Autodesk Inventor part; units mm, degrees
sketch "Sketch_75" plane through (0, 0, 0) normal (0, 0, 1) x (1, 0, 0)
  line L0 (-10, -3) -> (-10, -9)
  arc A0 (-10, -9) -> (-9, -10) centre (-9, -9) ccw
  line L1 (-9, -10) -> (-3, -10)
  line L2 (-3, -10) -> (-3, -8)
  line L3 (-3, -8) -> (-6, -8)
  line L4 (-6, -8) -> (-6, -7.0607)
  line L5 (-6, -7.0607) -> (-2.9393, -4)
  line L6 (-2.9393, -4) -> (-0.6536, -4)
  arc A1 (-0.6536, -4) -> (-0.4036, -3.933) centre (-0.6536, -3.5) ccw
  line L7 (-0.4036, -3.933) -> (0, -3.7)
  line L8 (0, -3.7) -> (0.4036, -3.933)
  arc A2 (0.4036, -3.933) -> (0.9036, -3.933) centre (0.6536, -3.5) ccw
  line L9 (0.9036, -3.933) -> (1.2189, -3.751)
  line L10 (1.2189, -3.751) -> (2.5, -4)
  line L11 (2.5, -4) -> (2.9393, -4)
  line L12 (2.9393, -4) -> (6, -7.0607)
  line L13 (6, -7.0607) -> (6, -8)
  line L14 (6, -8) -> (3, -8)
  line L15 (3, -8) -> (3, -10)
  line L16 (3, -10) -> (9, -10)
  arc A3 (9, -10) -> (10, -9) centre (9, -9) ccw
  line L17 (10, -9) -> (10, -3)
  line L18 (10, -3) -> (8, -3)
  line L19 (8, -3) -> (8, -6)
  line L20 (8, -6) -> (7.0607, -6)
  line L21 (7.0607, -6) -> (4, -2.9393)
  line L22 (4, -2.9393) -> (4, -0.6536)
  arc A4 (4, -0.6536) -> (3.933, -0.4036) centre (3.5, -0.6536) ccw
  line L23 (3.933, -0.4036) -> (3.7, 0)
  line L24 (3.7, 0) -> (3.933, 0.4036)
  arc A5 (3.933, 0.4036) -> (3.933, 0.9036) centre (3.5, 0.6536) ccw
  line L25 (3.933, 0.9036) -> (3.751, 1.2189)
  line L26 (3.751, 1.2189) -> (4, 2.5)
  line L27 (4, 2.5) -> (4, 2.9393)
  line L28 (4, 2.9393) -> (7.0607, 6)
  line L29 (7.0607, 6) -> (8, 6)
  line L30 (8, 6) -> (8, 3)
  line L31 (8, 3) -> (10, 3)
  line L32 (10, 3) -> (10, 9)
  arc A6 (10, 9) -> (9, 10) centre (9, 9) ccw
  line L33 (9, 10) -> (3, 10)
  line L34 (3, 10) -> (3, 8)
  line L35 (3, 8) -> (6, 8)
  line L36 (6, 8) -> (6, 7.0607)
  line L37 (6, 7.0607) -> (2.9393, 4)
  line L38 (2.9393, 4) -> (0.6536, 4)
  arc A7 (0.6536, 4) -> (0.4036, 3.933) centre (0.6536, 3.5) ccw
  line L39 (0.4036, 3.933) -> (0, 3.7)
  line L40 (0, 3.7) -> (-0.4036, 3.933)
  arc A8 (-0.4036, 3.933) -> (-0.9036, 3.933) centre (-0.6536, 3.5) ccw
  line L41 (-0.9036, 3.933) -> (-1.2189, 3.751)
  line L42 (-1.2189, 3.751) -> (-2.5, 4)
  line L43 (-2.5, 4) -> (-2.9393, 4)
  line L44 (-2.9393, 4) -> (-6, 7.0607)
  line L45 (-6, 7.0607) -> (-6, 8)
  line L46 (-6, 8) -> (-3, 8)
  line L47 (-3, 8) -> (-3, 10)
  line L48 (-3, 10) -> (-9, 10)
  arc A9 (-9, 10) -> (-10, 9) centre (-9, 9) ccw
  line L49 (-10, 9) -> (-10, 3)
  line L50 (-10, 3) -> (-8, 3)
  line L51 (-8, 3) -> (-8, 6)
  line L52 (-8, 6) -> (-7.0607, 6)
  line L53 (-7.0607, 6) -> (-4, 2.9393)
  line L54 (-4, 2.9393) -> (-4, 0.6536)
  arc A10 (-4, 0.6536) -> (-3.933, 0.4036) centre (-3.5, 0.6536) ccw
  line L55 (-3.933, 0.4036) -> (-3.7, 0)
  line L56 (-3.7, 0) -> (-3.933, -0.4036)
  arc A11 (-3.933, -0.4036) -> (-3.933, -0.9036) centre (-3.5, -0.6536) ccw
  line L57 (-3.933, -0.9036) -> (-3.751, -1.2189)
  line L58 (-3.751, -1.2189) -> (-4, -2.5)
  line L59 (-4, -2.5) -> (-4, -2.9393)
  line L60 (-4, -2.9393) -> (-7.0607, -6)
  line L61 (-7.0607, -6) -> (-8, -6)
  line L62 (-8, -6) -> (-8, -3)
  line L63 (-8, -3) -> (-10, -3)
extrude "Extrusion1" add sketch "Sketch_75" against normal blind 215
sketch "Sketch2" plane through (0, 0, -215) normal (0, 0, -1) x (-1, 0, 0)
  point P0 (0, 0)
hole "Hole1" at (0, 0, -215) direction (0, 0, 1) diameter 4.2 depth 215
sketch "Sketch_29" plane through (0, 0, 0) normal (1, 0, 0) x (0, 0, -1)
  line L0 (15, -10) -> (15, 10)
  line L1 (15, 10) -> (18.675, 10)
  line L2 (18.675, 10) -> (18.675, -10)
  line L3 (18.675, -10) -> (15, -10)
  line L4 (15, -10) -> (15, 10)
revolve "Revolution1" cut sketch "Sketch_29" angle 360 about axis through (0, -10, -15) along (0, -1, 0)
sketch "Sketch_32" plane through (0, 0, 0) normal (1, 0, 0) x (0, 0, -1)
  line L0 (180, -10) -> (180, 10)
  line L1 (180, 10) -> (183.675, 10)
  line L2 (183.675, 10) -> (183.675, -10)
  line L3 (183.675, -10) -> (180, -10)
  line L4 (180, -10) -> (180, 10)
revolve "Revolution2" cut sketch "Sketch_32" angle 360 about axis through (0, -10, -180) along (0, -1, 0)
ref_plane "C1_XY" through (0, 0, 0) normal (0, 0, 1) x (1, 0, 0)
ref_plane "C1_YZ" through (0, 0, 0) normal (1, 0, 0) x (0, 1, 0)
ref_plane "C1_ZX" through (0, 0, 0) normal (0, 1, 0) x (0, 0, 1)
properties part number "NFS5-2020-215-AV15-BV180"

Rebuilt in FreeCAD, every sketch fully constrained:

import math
import FreeCAD as App
import Part
import Sketcher

V = App.Vector
Q = App.Units.Quantity

doc = App.newDocument("Part")
body = doc.addObject("PartDesign::Body", "Body")

# Sketch on XY plane
sketch1 = body.newObject("Sketcher::SketchObject", "Sketch")
sketch1.AttachmentSupport = (doc.getObject("XY_Plane"), [""])
sketch1.MapMode = "FlatFace"
sketch1.addGeometry([
    Part.LineSegment(V(-8, -3, 0), V(-10, -3, 0)),  # 0
    Part.LineSegment(V(-10, -3, 0), V(-10, -9, 0)),  # 1
    Part.ArcOfCircle(Part.Circle(V(-9, -9, 0), V(0, 0, 1), 1), math.radians(180), math.radians(270)),  # 2
    Part.LineSegment(V(-9, -10, 0), V(-3, -10, 0)),  # 3
    Part.LineSegment(V(-3, -10, 0), V(-3, -8, 0)),  # 4
    Part.LineSegment(V(-3, -8, 0), V(-6, -8, 0)),  # 5
    Part.LineSegment(V(-6, -8, 0), V(-6, -7.06, 0)),  # 6
    Part.LineSegment(V(-6, -7.06, 0), V(-2.94, -4, 0)),  # 7
    Part.LineSegment(V(-2.94, -4, 0), V(-0.65, -4, 0)),  # 8
    Part.ArcOfCircle(Part.Circle(V(-0.65, -3.5, 0), V(0, 0, 1), 0.5), math.radians(-90), math.radians(-60)),  # 9
    Part.LineSegment(V(-0.4, -3.93, 0), V(0, -3.7, 0)),  # 10
    Part.LineSegment(V(0, -3.7, 0), V(0.4, -3.93, 0)),  # 11
    Part.ArcOfCircle(Part.Circle(V(0.65, -3.5, 0), V(0, 0, 1), 0.5), math.radians(-120), math.radians(-60)),  # 12
    Part.LineSegment(V(0.9, -3.93, 0), V(1.22, -3.75, 0)),  # 13
    Part.LineSegment(V(1.22, -3.75, 0), V(2.5, -4, 0)),  # 14
    Part.LineSegment(V(2.5, -4, 0), V(2.94, -4, 0)),  # 15
    Part.LineSegment(V(2.94, -4, 0), V(6, -7.06, 0)),  # 16
    Part.LineSegment(V(6, -7.06, 0), V(6, -8, 0)),  # 17
    Part.LineSegment(V(6, -8, 0), V(3, -8, 0)),  # 18
    Part.LineSegment(V(3, -8, 0), V(3, -10, 0)),  # 19
    Part.LineSegment(V(3, -10, 0), V(9, -10, 0)),  # 20
    Part.ArcOfCircle(Part.Circle(V(9, -9, 0), V(0, 0, 1), 1), math.radians(-90), math.radians(0)),  # 21
    Part.LineSegment(V(10, -9, 0), V(10, -3, 0)),  # 22
    Part.LineSegment(V(10, -3, 0), V(8, -3, 0)),  # 23
    Part.LineSegment(V(8, -3, 0), V(8, -6, 0)),  # 24
    Part.LineSegment(V(8, -6, 0), V(7.06, -6, 0)),  # 25
    Part.LineSegment(V(7.06, -6, 0), V(4, -2.94, 0)),  # 26
    Part.LineSegment(V(4, -2.94, 0), V(4, -0.65, 0)),  # 27
    Part.ArcOfCircle(Part.Circle(V(3.5, -0.65, 0), V(0, 0, 1), 0.5), math.radians(0), math.radians(30)),  # 28
    Part.LineSegment(V(3.93, -0.4, 0), V(3.7, 0, 0)),  # 29
    Part.LineSegment(V(3.7, 0, 0), V(3.93, 0.4, 0)),  # 30
    Part.ArcOfCircle(Part.Circle(V(3.5, 0.65, 0), V(0, 0, 1), 0.5), math.radians(-30), math.radians(30)),  # 31
    Part.LineSegment(V(3.93, 0.9, 0), V(3.75, 1.22, 0)),  # 32
    Part.LineSegment(V(3.75, 1.22, 0), V(4, 2.5, 0)),  # 33
    Part.LineSegment(V(4, 2.5, 0), V(4, 2.94, 0)),  # 34
    Part.LineSegment(V(4, 2.94, 0), V(7.06, 6, 0)),  # 35
    Part.LineSegment(V(7.06, 6, 0), V(8, 6, 0)),  # 36
    Part.LineSegment(V(8, 6, 0), V(8, 3, 0)),  # 37
    Part.LineSegment(V(8, 3, 0), V(10, 3, 0)),  # 38
    Part.LineSegment(V(10, 3, 0), V(10, 9, 0)),  # 39
    Part.ArcOfCircle(Part.Circle(V(9, 9, 0), V(0, 0, 1), 1), math.radians(0), math.radians(90)),  # 40
    Part.LineSegment(V(9, 10, 0), V(3, 10, 0)),  # 41
    Part.LineSegment(V(3, 10, 0), V(3, 8, 0)),  # 42
    Part.LineSegment(V(3, 8, 0), V(6, 8, 0)),  # 43
    Part.LineSegment(V(6, 8, 0), V(6, 7.06, 0)),  # 44
    Part.LineSegment(V(6, 7.06, 0), V(2.94, 4, 0)),  # 45
    Part.LineSegment(V(2.94, 4, 0), V(0.65, 4, 0)),  # 46
    Part.ArcOfCircle(Part.Circle(V(0.65, 3.5, 0), V(0, 0, 1), 0.5), math.radians(90), math.radians(120)),  # 47
    Part.LineSegment(V(0.4, 3.93, 0), V(0, 3.7, 0)),  # 48
    Part.LineSegment(V(0, 3.7, 0), V(-0.4, 3.93, 0)),  # 49
    Part.ArcOfCircle(Part.Circle(V(-0.65, 3.5, 0), V(0, 0, 1), 0.5), math.radians(60), math.radians(120)),  # 50
    Part.LineSegment(V(-0.9, 3.93, 0), V(-1.22, 3.75, 0)),  # 51
    Part.LineSegment(V(-1.22, 3.75, 0), V(-2.5, 4, 0)),  # 52
    Part.LineSegment(V(-2.5, 4, 0), V(-2.94, 4, 0)),  # 53
    Part.LineSegment(V(-2.94, 4, 0), V(-6, 7.06, 0)),  # 54
    Part.LineSegment(V(-6, 7.06, 0), V(-6, 8, 0)),  # 55
    Part.LineSegment(V(-6, 8, 0), V(-3, 8, 0)),  # 56
    Part.LineSegment(V(-3, 8, 0), V(-3, 10, 0)),  # 57
    Part.LineSegment(V(-3, 10, 0), V(-9, 10, 0)),  # 58
    Part.ArcOfCircle(Part.Circle(V(-9, 9, 0), V(0, 0, 1), 1), math.radians(90), math.radians(180)),  # 59
    Part.LineSegment(V(-10, 9, 0), V(-10, 3, 0)),  # 60
    Part.LineSegment(V(-10, 3, 0), V(-8, 3, 0)),  # 61
    Part.LineSegment(V(-8, 3, 0), V(-8, 6, 0)),  # 62
    Part.LineSegment(V(-8, 6, 0), V(-7.06, 6, 0)),  # 63
    Part.LineSegment(V(-7.06, 6, 0), V(-4, 2.94, 0)),  # 64
    Part.LineSegment(V(-4, 2.94, 0), V(-4, 0.65, 0)),  # 65
    Part.ArcOfCircle(Part.Circle(V(-3.5, 0.65, 0), V(0, 0, 1), 0.5), math.radians(180), math.radians(210)),  # 66
    Part.LineSegment(V(-3.93, 0.4, 0), V(-3.7, 0, 0)),  # 67
    Part.LineSegment(V(-3.7, 0, 0), V(-3.93, -0.4, 0)),  # 68
    Part.ArcOfCircle(Part.Circle(V(-3.5, -0.65, 0), V(0, 0, 1), 0.5), math.radians(150), math.radians(210)),  # 69
    Part.LineSegment(V(-3.93, -0.9, 0), V(-3.75, -1.22, 0)),  # 70
    Part.LineSegment(V(-3.75, -1.22, 0), V(-4, -2.5, 0)),  # 71
    Part.LineSegment(V(-4, -2.5, 0), V(-4, -2.94, 0)),  # 72
    Part.LineSegment(V(-4, -2.94, 0), V(-7.06, -6, 0)),  # 73
    Part.LineSegment(V(-7.06, -6, 0), V(-8, -6, 0)),  # 74
    Part.LineSegment(V(-8, -6, 0), V(-8, -3, 0)),  # 75
], False)
sketch1.addConstraint([
    Sketcher.Constraint("Coincident", 0, 2, 1, 1),
    Sketcher.Constraint("Tangent", 1, 2, 2, 1),
    Sketcher.Constraint("Tangent", 2, 2, 3, 1),
    Sketcher.Constraint("Coincident", 3, 2, 4, 1),
    Sketcher.Constraint("Coincident", 4, 2, 5, 1),
    Sketcher.Constraint("Coincident", 5, 2, 6, 1),
    Sketcher.Constraint("Coincident", 6, 2, 7, 1),
    Sketcher.Constraint("Coincident", 7, 2, 8, 1),
    Sketcher.Constraint("Tangent", 8, 2, 9, 1),
    Sketcher.Constraint("Tangent", 9, 2, 10, 1),
    Sketcher.Constraint("Coincident", 10, 2, 11, 1),
    Sketcher.Constraint("Tangent", 11, 2, 12, 1),
    Sketcher.Constraint("Tangent", 12, 2, 13, 1),
    Sketcher.Constraint("Coincident", 13, 2, 14, 1),
    Sketcher.Constraint("Coincident", 14, 2, 15, 1),
    Sketcher.Constraint("Coincident", 15, 2, 16, 1),
    Sketcher.Constraint("Coincident", 16, 2, 17, 1),
    Sketcher.Constraint("Coincident", 17, 2, 18, 1),
    Sketcher.Constraint("Coincident", 18, 2, 19, 1),
    Sketcher.Constraint("Coincident", 19, 2, 20, 1),
    Sketcher.Constraint("Tangent", 20, 2, 21, 1),
    Sketcher.Constraint("Tangent", 21, 2, 22, 1),
    Sketcher.Constraint("Coincident", 22, 2, 23, 1),
    Sketcher.Constraint("Coincident", 23, 2, 24, 1),
    Sketcher.Constraint("Coincident", 24, 2, 25, 1),
    Sketcher.Constraint("Coincident", 25, 2, 26, 1),
    Sketcher.Constraint("Coincident", 26, 2, 27, 1),
    Sketcher.Constraint("Tangent", 27, 2, 28, 1),
    Sketcher.Constraint("Tangent", 28, 2, 29, 1),
    Sketcher.Constraint("Coincident", 29, 2, 30, 1),
    Sketcher.Constraint("Tangent", 30, 2, 31, 1),
    Sketcher.Constraint("Tangent", 31, 2, 32, 1),
    Sketcher.Constraint("Coincident", 32, 2, 33, 1),
    Sketcher.Constraint("Coincident", 33, 2, 34, 1),
    Sketcher.Constraint("Coincident", 34, 2, 35, 1),
    Sketcher.Constraint("Coincident", 35, 2, 36, 1),
    Sketcher.Constraint("Coincident", 36, 2, 37, 1),
    Sketcher.Constraint("Coincident", 37, 2, 38, 1),
    Sketcher.Constraint("Coincident", 38, 2, 39, 1),
    Sketcher.Constraint("Tangent", 39, 2, 40, 1),
    Sketcher.Constraint("Tangent", 40, 2, 41, 1),
    Sketcher.Constraint("Coincident", 41, 2, 42, 1),
    Sketcher.Constraint("Coincident", 42, 2, 43, 1),
    Sketcher.Constraint("Coincident", 43, 2, 44, 1),
    Sketcher.Constraint("Coincident", 44, 2, 45, 1),
    Sketcher.Constraint("Coincident", 45, 2, 46, 1),
    Sketcher.Constraint("Tangent", 46, 2, 47, 1),
    Sketcher.Constraint("Tangent", 47, 2, 48, 1),
    Sketcher.Constraint("Coincident", 48, 2, 49, 1),
    Sketcher.Constraint("Tangent", 49, 2, 50, 1),
    Sketcher.Constraint("Tangent", 50, 2, 51, 1),
    Sketcher.Constraint("Coincident", 51, 2, 52, 1),
    Sketcher.Constraint("Coincident", 52, 2, 53, 1),
    Sketcher.Constraint("Coincident", 53, 2, 54, 1),
    Sketcher.Constraint("Coincident", 54, 2, 55, 1),
    Sketcher.Constraint("Coincident", 55, 2, 56, 1),
    Sketcher.Constraint("Coincident", 56, 2, 57, 1),
    Sketcher.Constraint("Coincident", 57, 2, 58, 1),
    Sketcher.Constraint("Tangent", 58, 2, 59, 1),
    Sketcher.Constraint("Tangent", 59, 2, 60, 1),
    Sketcher.Constraint("Coincident", 60, 2, 61, 1),
    Sketcher.Constraint("Coincident", 61, 2, 62, 1),
    Sketcher.Constraint("Coincident", 62, 2, 63, 1),
    Sketcher.Constraint("Coincident", 63, 2, 64, 1),
    Sketcher.Constraint("Coincident", 64, 2, 65, 1),
    Sketcher.Constraint("Tangent", 65, 2, 66, 1),
    Sketcher.Constraint("Tangent", 66, 2, 67, 1),
    Sketcher.Constraint("Coincident", 67, 2, 68, 1),
    Sketcher.Constraint("Tangent", 68, 2, 69, 1),
    Sketcher.Constraint("Tangent", 69, 2, 70, 1),
    Sketcher.Constraint("Coincident", 70, 2, 71, 1),
    Sketcher.Constraint("Coincident", 71, 2, 72, 1),
    Sketcher.Constraint("Coincident", 72, 2, 73, 1),
    Sketcher.Constraint("Coincident", 73, 2, 74, 1),
    Sketcher.Constraint("Coincident", 74, 2, 75, 1),
    Sketcher.Constraint("Coincident", 75, 2, 0, 1),
    Sketcher.Constraint("Horizontal", 0),
    Sketcher.Constraint("Vertical", 1),
    Sketcher.Constraint("Horizontal", 3),
    Sketcher.Constraint("Vertical", 4),
    Sketcher.Constraint("Horizontal", 5),
    Sketcher.Constraint("Vertical", 6),
    Sketcher.Constraint("Horizontal", 8),
    Sketcher.Constraint("Horizontal", 15),
    Sketcher.Constraint("Vertical", 17),
    Sketcher.Constraint("Horizontal", 18),
    Sketcher.Constraint("Vertical", 19),
    Sketcher.Constraint("Horizontal", 20),
    Sketcher.Constraint("Vertical", 22),
    Sketcher.Constraint("Horizontal", 23),
    Sketcher.Constraint("Vertical", 24),
    Sketcher.Constraint("Horizontal", 25),
    Sketcher.Constraint("Vertical", 27),
    Sketcher.Constraint("Vertical", 34),
    Sketcher.Constraint("Horizontal", 36),
    Sketcher.Constraint("Vertical", 37),
    Sketcher.Constraint("Horizontal", 38),
    Sketcher.Constraint("Vertical", 39),
    Sketcher.Constraint("Horizontal", 41),
    Sketcher.Constraint("Vertical", 42),
    Sketcher.Constraint("Horizontal", 43),
    Sketcher.Constraint("Vertical", 44),
    Sketcher.Constraint("Horizontal", 46),
    Sketcher.Constraint("Horizontal", 53),
    Sketcher.Constraint("Vertical", 55),
    Sketcher.Constraint("Horizontal", 56),
    Sketcher.Constraint("Vertical", 57),
    Sketcher.Constraint("Horizontal", 58),
    Sketcher.Constraint("Vertical", 60),
    Sketcher.Constraint("Horizontal", 61),
    Sketcher.Constraint("Vertical", 62),
    Sketcher.Constraint("Horizontal", 63),
    Sketcher.Constraint("Vertical", 65),
    Sketcher.Constraint("Vertical", 72),
    Sketcher.Constraint("Horizontal", 74),
    Sketcher.Constraint("Vertical", 75),
    Sketcher.Constraint("Equal", 9, 12),
    Sketcher.Constraint("Equal", 2, 21),
    Sketcher.Constraint("Equal", 12, 28),
    Sketcher.Constraint("Equal", 28, 31),
    Sketcher.Constraint("Equal", 21, 40),
    Sketcher.Constraint("Equal", 31, 47),
    Sketcher.Constraint("Equal", 47, 50),
    Sketcher.Constraint("Equal", 40, 59),
    Sketcher.Constraint("Equal", 50, 66),
    Sketcher.Constraint("Equal", 66, 69),
    Sketcher.Constraint("Symmetric", 2, 3, 40, 3, -1, 1),
    Sketcher.Constraint("Symmetric", 9, 3, 47, 3, -1, 1),
    Sketcher.Constraint("Symmetric", 12, 3, 50, 3, -1, 1),
    Sketcher.Constraint("Symmetric", 21, 3, 59, 3, -1, 1),
    Sketcher.Constraint("Symmetric", 28, 3, 66, 3, -1, 1),
    Sketcher.Constraint("Symmetric", 31, 3, 69, 3, -1, 1),
    Sketcher.Constraint("Symmetric", 4, 2, 42, 2, -1, 1),
    Sketcher.Constraint("Symmetric", 6, 2, 44, 2, -1, 1),
    Sketcher.Constraint("Symmetric", 10, 2, 48, 2, -1, 1),
    Sketcher.Constraint("Symmetric", 13, 2, 51, 2, -1, 1),
    Sketcher.Constraint("Symmetric", 14, 2, 52, 2, -1, 1),
    Sketcher.Constraint("Symmetric", 16, 2, 54, 2, -1, 1),
    Sketcher.Constraint("Symmetric", 18, 2, 56, 2, -1, 1),
    Sketcher.Constraint("Symmetric", 23, 2, 61, 2, -1, 1),
    Sketcher.Constraint("Symmetric", 25, 2, 63, 2, -1, 1),
    Sketcher.Constraint("Symmetric", 29, 2, 67, 2, -1, 1),
    Sketcher.Constraint("Symmetric", 32, 2, 70, 2, -1, 1),
    Sketcher.Constraint("Symmetric", 33, 2, 71, 2, -1, 1),
    Sketcher.Constraint("Symmetric", 35, 2, 73, 2, -1, 1),
    Sketcher.Constraint("Symmetric", 37, 2, 75, 2, -1, 1),
    Sketcher.Constraint("Symmetric", 9, 3, 12, 3, -2),
    Sketcher.Constraint("Symmetric", 2, 3, 21, 3, -2),
    Sketcher.Constraint("Symmetric", 31, 3, 66, 3, -2),
    Sketcher.Constraint("Symmetric", 7, 2, 15, 2, -2),
    Sketcher.Constraint("Symmetric", 6, 2, 16, 2, -2),
    Sketcher.Constraint("Symmetric", 4, 2, 18, 2, -2),
    Sketcher.Constraint("Symmetric", 37, 2, 61, 2, -2),
    Sketcher.Constraint("Symmetric", 35, 2, 63, 2, -2),
    Sketcher.Constraint("Symmetric", 34, 2, 64, 2, -2),
    Sketcher.Constraint("PointOnObject", 10, 2, -2),
    Sketcher.Constraint("PointOnObject", 29, 2, -1),
    Sketcher.Constraint("Parallel", 10, 13),
    Sketcher.Constraint("Perpendicular", 7, 16),
    Sketcher.Constraint("Parallel", 16, 26),
    Sketcher.Constraint("Perpendicular", 13, 29),
    Sketcher.Constraint("Parallel", 29, 32),
    Sketcher.Constraint("Perpendicular", 14, 33),
    Sketcher.Constraint("Perpendicular", 26, 35),
    Sketcher.Constraint("Parallel", 35, 45),
    Sketcher.Constraint("Perpendicular", 45, 54),
    Sketcher.Constraint("Perpendicular", 64, 73),
    Sketcher.Constraint("Equal", 58, 1),
    Sketcher.Constraint("Equal", 61, 4),
    Sketcher.Constraint("Equal", 74, 6),
    Sketcher.Constraint("Equal", 56, 24),
    Sketcher.Constraint("Equal", 46, 27),
    Sketcher.Constraint("Equal", 53, 34),
    Sketcher.Constraint("Equal", 16, 26),
    Sketcher.Constraint("Equal", 11, 29),
    Sketcher.Constraint("Radius", 2, 1.0),
    Sketcher.Constraint("Radius", 9, 0.5),
    Sketcher.Constraint("DistanceX", 0, 2, 0, 1, 2.0),
    Sketcher.Constraint("DistanceX", 3, 1, 3, 2, 6.0),
    Sketcher.Constraint("DistanceX", 5, 2, 5, 1, 3.0),
    Sketcher.Constraint("Angle", 14, Q("-10.999 deg")),
    Sketcher.Constraint("DistanceX", 2, 3, -1, 1, 9.0),
    Sketcher.Constraint("DistanceY", 7, 2, -1, 1, 4.0),
    Sketcher.Constraint("DistanceY", 10, 2, -1, 1, 3.7),
    Sketcher.Constraint("DistanceX", -1, 1, 14, 2, 2.5),
    Sketcher.Constraint("Distance", 10, 0.466),
    Sketcher.Constraint("DistanceX", 8, 1, 8, 2, 2.2857),
])
pad1 = body.newObject("PartDesign::Pad", "Pad")
pad1.Profile = sketch1
pad1.Length = 215
pad1.Reversed = True

# Sketch on XY plane
sketch2 = body.newObject("Sketcher::SketchObject", "Sketch001")
sketch2.AttachmentSupport = (doc.getObject("XY_Plane"), [""])
sketch2.MapMode = "FlatFace"
sketch2.AttachmentOffset = App.Placement(V(0, 0, -215), App.Rotation())
sketch2.addGeometry(Part.Circle(V(0, 0, 0), V(0, 0, 1), 2.1), False)
sketch2.addConstraint([
    Sketcher.Constraint("Coincident", 0, 3, -1, 1),
    Sketcher.Constraint("Diameter", 0, 4.2),
])
doc.recompute()
hole = body.newObject("PartDesign::Hole", "Hole")
hole.Profile = sketch2
hole.ThreadType = "None"
hole.Diameter = 4.2
hole.DepthType = "Dimension"
hole.Depth = 215
hole.DrillPoint = "Flat"
hole.Reversed = True

# Sketch on YZ plane
sketch3 = body.newObject("Sketcher::SketchObject", "Sketch002")
sketch3.AttachmentSupport = (doc.getObject("YZ_Plane"), [""])
sketch3.MapMode = "FlatFace"
sketch3.addGeometry([
    Part.LineSegment(V(10, -15, 0), V(-10, -15, 0)),
    Part.LineSegment(V(-10, -15, 0), V(-10, -18.7, 0)),
    Part.LineSegment(V(-10, -18.7, 0), V(10, -18.7, 0)),
    Part.LineSegment(V(10, -18.7, 0), V(10, -15, 0)),
], False)
sketch3.addGeometry(Part.LineSegment(V(10, -15, 0), V(-10, -15, 0)), True)  # axis
sketch3.addConstraint([
    Sketcher.Constraint("Coincident", 0, 2, 1, 1),
    Sketcher.Constraint("Coincident", 1, 2, 2, 1),
    Sketcher.Constraint("Coincident", 2, 2, 3, 1),
    Sketcher.Constraint("Coincident", 3, 2, 0, 1),
    Sketcher.Constraint("Horizontal", 0),
    Sketcher.Constraint("Vertical", 1),
    Sketcher.Constraint("Horizontal", 2),
    Sketcher.Constraint("Vertical", 3),
    Sketcher.Constraint("Horizontal", 4),
    Sketcher.Constraint("Coincident", 4, 1, 3, 2),
    Sketcher.Constraint("Vertical", 1, 2, 4, 2),
    Sketcher.Constraint("DistanceX", 0, 2, 0, 1, 20.0),
    Sketcher.Constraint("DistanceX", 0, 2, -1, 1, 10.0),
    Sketcher.Constraint("DistanceY", 0, 2, -1, 1, 15.0),
    Sketcher.Constraint("DistanceY", 1, 2, 1, 1, 3.675),
])
groove = body.newObject("PartDesign::Groove", "Groove")
groove.Profile = sketch3
groove.ReferenceAxis = (sketch3, ["Axis0"])
groove.Angle = 360

# Sketch on YZ plane
sketch4 = body.newObject("Sketcher::SketchObject", "Sketch003")
sketch4.AttachmentSupport = (doc.getObject("YZ_Plane"), [""])
sketch4.MapMode = "FlatFace"
sketch4.addGeometry([
    Part.LineSegment(V(10, -180, 0), V(-10, -180, 0)),
    Part.LineSegment(V(-10, -180, 0), V(-10, -183.7, 0)),
    Part.LineSegment(V(-10, -183.7, 0), V(10, -183.7, 0)),
    Part.LineSegment(V(10, -183.7, 0), V(10, -180, 0)),
], False)
sketch4.addGeometry(Part.LineSegment(V(10, -180, 0), V(-10, -180, 0)), True)  # axis
sketch4.addConstraint([
    Sketcher.Constraint("Coincident", 0, 2, 1, 1),
    Sketcher.Constraint("Coincident", 1, 2, 2, 1),
    Sketcher.Constraint("Coincident", 2, 2, 3, 1),
    Sketcher.Constraint("Coincident", 3, 2, 0, 1),
    Sketcher.Constraint("Horizontal", 0),
    Sketcher.Constraint("Vertical", 1),
    Sketcher.Constraint("Horizontal", 2),
    Sketcher.Constraint("Vertical", 3),
    Sketcher.Constraint("Horizontal", 4),
    Sketcher.Constraint("Coincident", 4, 1, 3, 2),
    Sketcher.Constraint("Vertical", 1, 2, 4, 2),
    Sketcher.Constraint("DistanceX", 0, 2, 0, 1, 20.0),
    Sketcher.Constraint("DistanceX", 0, 2, -1, 1, 10.0),
    Sketcher.Constraint("DistanceY", 0, 2, -1, 1, 180.0),
    Sketcher.Constraint("DistanceY", 1, 2, 1, 1, 3.675),
])
groove2 = body.newObject("PartDesign::Groove", "Groove001")
groove2.Profile = sketch4
groove2.ReferenceAxis = (sketch4, ["Axis0"])
groove2.Angle = 360

doc.recompute()
